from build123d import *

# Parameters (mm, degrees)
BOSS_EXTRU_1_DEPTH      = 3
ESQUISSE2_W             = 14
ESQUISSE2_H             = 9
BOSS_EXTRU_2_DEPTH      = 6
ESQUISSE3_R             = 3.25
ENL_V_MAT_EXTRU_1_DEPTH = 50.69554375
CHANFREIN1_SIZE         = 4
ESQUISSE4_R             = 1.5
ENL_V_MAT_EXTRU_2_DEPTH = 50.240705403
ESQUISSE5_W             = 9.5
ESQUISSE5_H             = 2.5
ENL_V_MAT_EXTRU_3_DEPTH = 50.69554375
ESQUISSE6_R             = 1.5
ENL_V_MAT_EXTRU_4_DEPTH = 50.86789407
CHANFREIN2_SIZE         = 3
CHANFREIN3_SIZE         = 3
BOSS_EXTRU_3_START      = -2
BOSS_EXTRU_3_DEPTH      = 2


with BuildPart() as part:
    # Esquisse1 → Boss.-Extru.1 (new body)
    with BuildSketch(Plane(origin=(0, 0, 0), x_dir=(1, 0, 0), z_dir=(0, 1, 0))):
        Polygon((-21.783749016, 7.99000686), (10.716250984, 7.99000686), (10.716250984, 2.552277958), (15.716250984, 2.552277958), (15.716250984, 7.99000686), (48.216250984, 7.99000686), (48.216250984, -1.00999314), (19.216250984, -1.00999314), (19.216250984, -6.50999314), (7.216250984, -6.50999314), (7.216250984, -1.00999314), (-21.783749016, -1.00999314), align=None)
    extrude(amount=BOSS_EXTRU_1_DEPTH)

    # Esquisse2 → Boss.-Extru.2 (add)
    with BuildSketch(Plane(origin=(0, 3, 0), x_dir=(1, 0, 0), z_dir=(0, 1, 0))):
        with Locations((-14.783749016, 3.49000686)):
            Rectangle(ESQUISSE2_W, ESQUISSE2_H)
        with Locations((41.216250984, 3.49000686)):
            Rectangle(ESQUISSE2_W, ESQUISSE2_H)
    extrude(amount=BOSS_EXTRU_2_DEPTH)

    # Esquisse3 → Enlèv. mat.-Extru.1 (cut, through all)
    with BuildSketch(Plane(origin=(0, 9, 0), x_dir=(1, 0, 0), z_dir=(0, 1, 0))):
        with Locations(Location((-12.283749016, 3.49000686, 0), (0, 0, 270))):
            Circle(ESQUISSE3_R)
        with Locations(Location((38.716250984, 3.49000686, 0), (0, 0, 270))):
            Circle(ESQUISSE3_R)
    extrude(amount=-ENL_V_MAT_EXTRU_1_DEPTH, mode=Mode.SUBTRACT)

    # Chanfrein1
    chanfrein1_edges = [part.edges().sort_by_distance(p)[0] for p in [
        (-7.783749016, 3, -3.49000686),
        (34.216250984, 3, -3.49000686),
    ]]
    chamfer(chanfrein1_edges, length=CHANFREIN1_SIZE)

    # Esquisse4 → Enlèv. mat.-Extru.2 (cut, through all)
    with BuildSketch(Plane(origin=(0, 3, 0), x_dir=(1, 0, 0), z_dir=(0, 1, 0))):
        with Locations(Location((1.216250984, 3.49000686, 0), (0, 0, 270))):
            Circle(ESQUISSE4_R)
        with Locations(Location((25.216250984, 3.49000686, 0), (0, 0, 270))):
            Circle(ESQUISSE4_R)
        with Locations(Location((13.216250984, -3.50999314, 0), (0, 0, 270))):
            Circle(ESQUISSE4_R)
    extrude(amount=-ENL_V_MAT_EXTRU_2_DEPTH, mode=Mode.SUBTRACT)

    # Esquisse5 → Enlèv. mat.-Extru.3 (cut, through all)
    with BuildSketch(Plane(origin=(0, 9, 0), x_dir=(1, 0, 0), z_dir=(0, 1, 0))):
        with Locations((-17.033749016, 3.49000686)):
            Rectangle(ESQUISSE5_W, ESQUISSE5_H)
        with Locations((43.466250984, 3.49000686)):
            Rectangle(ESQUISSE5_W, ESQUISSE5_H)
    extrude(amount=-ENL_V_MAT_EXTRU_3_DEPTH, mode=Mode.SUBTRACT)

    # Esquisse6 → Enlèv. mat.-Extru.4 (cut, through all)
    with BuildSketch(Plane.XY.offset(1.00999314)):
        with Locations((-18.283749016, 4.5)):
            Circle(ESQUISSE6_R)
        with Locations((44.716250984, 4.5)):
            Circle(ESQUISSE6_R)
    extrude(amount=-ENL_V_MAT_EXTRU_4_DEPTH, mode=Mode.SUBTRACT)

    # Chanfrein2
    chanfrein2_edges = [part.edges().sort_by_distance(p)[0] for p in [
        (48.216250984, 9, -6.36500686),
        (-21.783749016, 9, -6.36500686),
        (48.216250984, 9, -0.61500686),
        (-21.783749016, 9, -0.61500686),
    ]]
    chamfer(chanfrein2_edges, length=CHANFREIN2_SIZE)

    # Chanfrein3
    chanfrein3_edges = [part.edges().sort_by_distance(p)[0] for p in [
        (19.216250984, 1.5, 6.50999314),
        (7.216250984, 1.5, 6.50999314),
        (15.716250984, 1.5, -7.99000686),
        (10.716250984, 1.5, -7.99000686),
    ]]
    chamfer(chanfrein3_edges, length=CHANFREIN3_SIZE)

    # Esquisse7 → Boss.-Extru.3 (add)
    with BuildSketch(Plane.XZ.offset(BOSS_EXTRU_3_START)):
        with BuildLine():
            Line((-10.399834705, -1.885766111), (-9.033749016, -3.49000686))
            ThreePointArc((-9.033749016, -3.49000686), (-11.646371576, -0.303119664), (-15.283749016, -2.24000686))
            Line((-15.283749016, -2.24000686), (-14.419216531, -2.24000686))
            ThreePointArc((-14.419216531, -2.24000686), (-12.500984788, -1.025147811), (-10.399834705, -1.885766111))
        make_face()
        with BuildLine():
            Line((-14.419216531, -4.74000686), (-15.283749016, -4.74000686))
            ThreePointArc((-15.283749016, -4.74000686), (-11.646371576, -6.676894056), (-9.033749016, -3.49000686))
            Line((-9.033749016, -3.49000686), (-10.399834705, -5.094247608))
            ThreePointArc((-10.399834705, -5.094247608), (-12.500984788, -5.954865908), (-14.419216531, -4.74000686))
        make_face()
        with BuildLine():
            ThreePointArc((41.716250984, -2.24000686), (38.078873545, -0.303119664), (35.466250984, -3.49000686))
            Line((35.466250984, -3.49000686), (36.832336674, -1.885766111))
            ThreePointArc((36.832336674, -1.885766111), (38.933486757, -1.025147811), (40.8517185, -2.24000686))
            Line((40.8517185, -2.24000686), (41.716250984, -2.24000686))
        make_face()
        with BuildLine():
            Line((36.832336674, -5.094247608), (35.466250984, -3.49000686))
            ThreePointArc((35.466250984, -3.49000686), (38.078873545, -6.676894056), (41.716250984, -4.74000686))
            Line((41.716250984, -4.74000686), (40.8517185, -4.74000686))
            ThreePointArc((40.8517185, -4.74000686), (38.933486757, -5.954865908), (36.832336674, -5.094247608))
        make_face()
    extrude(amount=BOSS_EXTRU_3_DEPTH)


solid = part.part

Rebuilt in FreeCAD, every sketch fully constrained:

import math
import FreeCAD as App
import Part
import Sketcher
Q = App.Units.Quantity


def edges_at(feature, points):
    """Names of the edges that pass closest to the given points."""
    edges = feature.Shape.Edges
    near = lambda p: min(range(len(edges)), key=lambda i: edges[i].distToShape(Part.Vertex(*p))[0])
    return sorted({f"Edge{near(p) + 1}" for p in points})


def add_polygon(sketch, points):
    """Adds a closed chain of lines whose ends are joined by coincident constraints."""
    first, n = sketch.GeometryCount, len(points)
    for a, b in zip(points, points[1:] + points[:1]):
        sketch.addGeometry(Part.LineSegment(App.Vector(*a, 0), App.Vector(*b, 0)), False)
    for i in range(n):
        sketch.addConstraint(Sketcher.Constraint("Coincident", first + i, 2, first + (i + 1) % n, 1))

doc = App.newDocument("Part")
body = doc.addObject("PartDesign::Body", "Body")

sketch1 = body.newObject("Sketcher::SketchObject", "Sketch")
sketch1.AttachmentSupport = (doc.getObject("XZ_Plane"), [""])
sketch1.MapMode = "FlatFace"
add_polygon(sketch1, [(11, -8), (-22, -8), (-22, 1), (7, 1), (7, 7), (19, 7), (19, 1), (48, 1), (48, -8), (16, -8), (16, -3), (11, -3)])
sketch1.addConstraint(Sketcher.Constraint("Horizontal", 0))
sketch1.addConstraint(Sketcher.Constraint("Vertical", 1))
sketch1.addConstraint(Sketcher.Constraint("Horizontal", 2))
sketch1.addConstraint(Sketcher.Constraint("Vertical", 3))
sketch1.addConstraint(Sketcher.Constraint("Horizontal", 4))
sketch1.addConstraint(Sketcher.Constraint("Vertical", 5))
sketch1.addConstraint(Sketcher.Constraint("Horizontal", 6))
sketch1.addConstraint(Sketcher.Constraint("Vertical", 7))
sketch1.addConstraint(Sketcher.Constraint("Horizontal", 8))
sketch1.addConstraint(Sketcher.Constraint("Vertical", 9))
sketch1.addConstraint(Sketcher.Constraint("Horizontal", 10))
sketch1.addConstraint(Sketcher.Constraint("Vertical", 11))
sketch1.addConstraint(Sketcher.Constraint("Horizontal", 2, 2, 5, 2))
sketch1.addConstraint(Sketcher.Constraint("Horizontal", 0, 2, 7, 2))
sketch1.addConstraint(Sketcher.Constraint("Equal", 2, 6))
sketch1.addConstraint(Sketcher.Constraint("Equal", 0, 8))
sketch1.addConstraint(Sketcher.Constraint("DistanceX", 2, 1, 2, 2, Q("29 mm")))
sketch1.addConstraint(Sketcher.Constraint("DistanceX", 4, 1, 4, 2, Q("12 mm")))
sketch1.addConstraint(Sketcher.Constraint("DistanceX", 10, 2, 10, 1, Q("5 mm")))
sketch1.addConstraint(Sketcher.Constraint("DistanceY", 1, 1, 1, 2, Q("9 mm")))
sketch1.addConstraint(Sketcher.Constraint("DistanceY", 3, 1, 3, 2, Q("5.5 mm")))
sketch1.addConstraint(Sketcher.Constraint("DistanceY", 9, 1, 9, 2, Q("5.437729 mm")))
sketch1.addConstraint(Sketcher.Constraint("DistanceX", 0, 2, -1, 1, Q("21.783749 mm")))
sketch1.addConstraint(Sketcher.Constraint("DistanceY", 0, 2, -1, 1, Q("7.990007 mm")))
pad1 = body.newObject("PartDesign::Pad", "Pad")
pad1.Profile = sketch1
pad1.Length = 3
pad1.Reversed = True

sketch2 = body.newObject("Sketcher::SketchObject", "Sketch001")
sketch2.AttachmentSupport = (doc.getObject("XZ_Plane"), [""])
sketch2.MapMode = "FlatFace"
sketch2.AttachmentOffset = App.Placement(App.Vector(0, 0, -3), App.Rotation())
add_polygon(sketch2, [(-22, -8), (-22, 1), (-8, 1), (-8, -8)])
add_polygon(sketch2, [(34, -8), (34, 1), (48, 1), (48, -8)])
sketch2.addConstraint(Sketcher.Constraint("Vertical", 0))
sketch2.addConstraint(Sketcher.Constraint("Horizontal", 1))
sketch2.addConstraint(Sketcher.Constraint("Vertical", 2))
sketch2.addConstraint(Sketcher.Constraint("Horizontal", 3))
sketch2.addConstraint(Sketcher.Constraint("Vertical", 4))
sketch2.addConstraint(Sketcher.Constraint("Horizontal", 5))
sketch2.addConstraint(Sketcher.Constraint("Vertical", 6))
sketch2.addConstraint(Sketcher.Constraint("Horizontal", 7))
sketch2.addConstraint(Sketcher.Constraint("Horizontal", 1, 2, 4, 2))
sketch2.addConstraint(Sketcher.Constraint("Horizontal", 3, 2, 6, 2))
sketch2.addConstraint(Sketcher.Constraint("Equal", 3, 5))
sketch2.addConstraint(Sketcher.Constraint("DistanceX", 1, 1, 1, 2, Q("14 mm")))
sketch2.addConstraint(Sketcher.Constraint("DistanceY", 0, 1, 0, 2, Q("9 mm")))
sketch2.addConstraint(Sketcher.Constraint("DistanceX", 1, 2, 4, 2, Q("42 mm")))
sketch2.addConstraint(Sketcher.Constraint("DistanceX", 0, 2, -1, 1, Q("21.783749 mm")))
sketch2.addConstraint(Sketcher.Constraint("DistanceY", -1, 1, 0, 2, Q("1.009993 mm")))
pad2 = body.newObject("PartDesign::Pad", "Pad001")
pad2.Profile = sketch2
pad2.Length = 6
pad2.Reversed = True

sketch3 = body.newObject("Sketcher::SketchObject", "Sketch002")
sketch3.AttachmentSupport = (doc.getObject("XZ_Plane"), [""])
sketch3.MapMode = "FlatFace"
sketch3.AttachmentOffset = App.Placement(App.Vector(0, 0, -9), App.Rotation())
sketch3.addGeometry(Part.Circle(App.Vector(-12.3, -3.5, 0), App.Vector(0, 0, 1), 3.2), False)
sketch3.addGeometry(Part.Circle(App.Vector(38.7, -3.5, 0), App.Vector(0, 0, 1), 3.2), False)
sketch3.addConstraint(Sketcher.Constraint("Equal", 0, 1))
sketch3.addConstraint(Sketcher.Constraint("Horizontal", 0, 3, 1, 3))
sketch3.addConstraint(Sketcher.Constraint("Diameter", 0, Q("6.5 mm")))
sketch3.addConstraint(Sketcher.Constraint("DistanceX", 0, 3, 1, 3, Q("51 mm")))
sketch3.addConstraint(Sketcher.Constraint("DistanceX", 0, 3, -1, 1, Q("12.283749 mm")))
sketch3.addConstraint(Sketcher.Constraint("DistanceY", 0, 3, -1, 1, Q("3.490007 mm")))
pocket1 = body.newObject("PartDesign::Pocket", "Pocket")
pocket1.Profile = sketch3
pocket1.Type = "ThroughAll"
pocket1.Reversed = True
doc.recompute()

chamfer = body.newObject("PartDesign::Chamfer", "Chamfer")
chamfer.Base = (pocket1, edges_at(pocket1, [(-7.784, 3, -3.49), (34.216, 3, -3.49)]))
chamfer.Size = 4

sketch4 = body.newObject("Sketcher::SketchObject", "Sketch003")
sketch4.AttachmentSupport = (doc.getObject("XZ_Plane"), [""])
sketch4.MapMode = "FlatFace"
sketch4.AttachmentOffset = App.Placement(App.Vector(0, 0, -3), App.Rotation())
sketch4.addGeometry(Part.Circle(App.Vector(1.2, -3.5, 0), App.Vector(0, 0, 1), 1.5), False)
sketch4.addGeometry(Part.Circle(App.Vector(25.2, -3.5, 0), App.Vector(0, 0, 1), 1.5), False)
sketch4.addGeometry(Part.Circle(App.Vector(13.2, 3.5, 0), App.Vector(0, 0, 1), 1.5), False)
sketch4.addConstraint(Sketcher.Constraint("Equal", 0, 1))
sketch4.addConstraint(Sketcher.Constraint("Equal", 1, 2))
sketch4.addConstraint(Sketcher.Constraint("Horizontal", 0, 3, 1, 3))
sketch4.addConstraint(Sketcher.Constraint("Diameter", 0, Q("3 mm")))
sketch4.addConstraint(Sketcher.Constraint("DistanceX", 0, 3, 1, 3, Q("24 mm")))
sketch4.addConstraint(Sketcher.Constraint("DistanceX", 2, 3, 1, 3, Q("12 mm")))
sketch4.addConstraint(Sketcher.Constraint("DistanceY", 1, 3, 2, 3, Q("7 mm")))
sketch4.addConstraint(Sketcher.Constraint("DistanceX", -1, 1, 0, 3, Q("1.216251 mm")))
sketch4.addConstraint(Sketcher.Constraint("DistanceY", 0, 3, -1, 1, Q("3.490007 mm")))
pocket2 = body.newObject("PartDesign::Pocket", "Pocket001")
pocket2.Profile = sketch4
pocket2.Type = "ThroughAll"
pocket2.Reversed = True

sketch5 = body.newObject("Sketcher::SketchObject", "Sketch004")
sketch5.AttachmentSupport = (doc.getObject("XZ_Plane"), [""])
sketch5.MapMode = "FlatFace"
sketch5.AttachmentOffset = App.Placement(App.Vector(0, 0, -9), App.Rotation())
add_polygon(sketch5, [(-21.8, -4.7), (-21.8, -2.2), (-12.3, -2.2), (-12.3, -4.7)])
add_polygon(sketch5, [(38.7, -4.7), (38.7, -2.2), (48.2, -2.2), (48.2, -4.7)])
sketch5.addConstraint(Sketcher.Constraint("Vertical", 0))
sketch5.addConstraint(Sketcher.Constraint("Horizontal", 1))
sketch5.addConstraint(Sketcher.Constraint("Vertical", 2))
sketch5.addConstraint(Sketcher.Constraint("Horizontal", 3))
sketch5.addConstraint(Sketcher.Constraint("Vertical", 4))
sketch5.addConstraint(Sketcher.Constraint("Horizontal", 5))
sketch5.addConstraint(Sketcher.Constraint("Vertical", 6))
sketch5.addConstraint(Sketcher.Constraint("Horizontal", 7))
sketch5.addConstraint(Sketcher.Constraint("Horizontal", 1, 2, 4, 2))
sketch5.addConstraint(Sketcher.Constraint("Horizontal", 3, 2, 6, 2))
sketch5.addConstraint(Sketcher.Constraint("Equal", 3, 5))
sketch5.addConstraint(Sketcher.Constraint("DistanceX", 1, 1, 1, 2, Q("9.5 mm")))
sketch5.addConstraint(Sketcher.Constraint("DistanceY", 0, 1, 0, 2, Q("2.5 mm")))
sketch5.addConstraint(Sketcher.Constraint("DistanceX", 1, 2, 4, 2, Q("51 mm")))
sketch5.addConstraint(Sketcher.Constraint("DistanceX", 0, 2, -1, 1, Q("21.783749 mm")))
sketch5.addConstraint(Sketcher.Constraint("DistanceY", 0, 2, -1, 1, Q("2.240007 mm")))
pocket3 = body.newObject("PartDesign::Pocket", "Pocket002")
pocket3.Profile = sketch5
pocket3.Type = "ThroughAll"
pocket3.Reversed = True

sketch6 = body.newObject("Sketcher::SketchObject", "Sketch005")
sketch6.AttachmentSupport = (doc.getObject("XY_Plane"), [""])
sketch6.MapMode = "FlatFace"
sketch6.AttachmentOffset = App.Placement(App.Vector(0, 0, 1.009993), App.Rotation())
sketch6.addGeometry(Part.Circle(App.Vector(-18.3, 4.5, 0), App.Vector(0, 0, 1), 1.5), False)
sketch6.addGeometry(Part.Circle(App.Vector(44.7, 4.5, 0), App.Vector(0, 0, 1), 1.5), False)
sketch6.addConstraint(Sketcher.Constraint("Equal", 0, 1))
sketch6.addConstraint(Sketcher.Constraint("Horizontal", 0, 3, 1, 3))
sketch6.addConstraint(Sketcher.Constraint("Diameter", 0, Q("3 mm")))
sketch6.addConstraint(Sketcher.Constraint("DistanceX", 0, 3, 1, 3, Q("63 mm")))
sketch6.addConstraint(Sketcher.Constraint("DistanceY", -1, 1, 0, 3, Q("4.5 mm")))
sketch6.addConstraint(Sketcher.Constraint("DistanceX", 0, 3, -1, 1, Q("18.283749 mm")))
pocket4 = body.newObject("PartDesign::Pocket", "Pocket003")
pocket4.Profile = sketch6
pocket4.Type = "ThroughAll"
doc.recompute()

chamfer2 = body.newObject("PartDesign::Chamfer", "Chamfer001")
chamfer2.Base = (pocket4, edges_at(pocket4, [
    (48.216, 9, -6.365),
    (-21.784, 9, -6.365),
    (48.216, 9, -0.615),
    (-21.784, 9, -0.615),
]))
chamfer2.Size = 3
doc.recompute()

chamfer3 = body.newObject("PartDesign::Chamfer", "Chamfer002")
chamfer3.Base = (chamfer2, edges_at(chamfer2, [
    (19.216, 1.5, 6.51),
    (7.216, 1.5, 6.51),
    (15.716, 1.5, -7.99),
    (10.716, 1.5, -7.99),
]))
chamfer3.Size = 3

sketch7 = body.newObject("Sketcher::SketchObject", "Sketch006")
sketch7.AttachmentSupport = (doc.getObject("XZ_Plane"), [""])
sketch7.MapMode = "FlatFace"
sketch7.AttachmentOffset = App.Placement(App.Vector(0, 0, -2), App.Rotation())
sketch7.addGeometry(Part.LineSegment(App.Vector(-10.4, -1.9, 0), App.Vector(-9, -3.5, 0)), False)
sketch7.addGeometry(Part.ArcOfCircle(Part.Circle(App.Vector(-12.3, -3.5, 0), App.Vector(0, 0, 1), 3.2), math.radians(0), math.radians(157)), False)
sketch7.addGeometry(Part.LineSegment(App.Vector(-15.3, -2.2, 0), App.Vector(-14.4, -2.2, 0)), False)
sketch7.addGeometry(Part.ArcOfCircle(Part.Circle(App.Vector(-12.3, -3.5, 0), App.Vector(0, 0, 1), 2.5), math.radians(40), math.radians(150)), False)
sketch7.addGeometry(Part.LineSegment(App.Vector(-14.4, -4.7, 0), App.Vector(-15.3, -4.7, 0)), False)
sketch7.addGeometry(Part.ArcOfCircle(Part.Circle(App.Vector(-12.3, -3.5, 0), App.Vector(0, 0, 1), 3.2), math.radians(-157), math.radians(0)), False)
sketch7.addGeometry(Part.LineSegment(App.Vector(-9, -3.5, 0), App.Vector(-10.4, -5.1, 0)), False)
sketch7.addGeometry(Part.ArcOfCircle(Part.Circle(App.Vector(-12.3, -3.5, 0), App.Vector(0, 0, 1), 2.5), math.radians(-150), math.radians(-40)), False)
sketch7.addGeometry(Part.ArcOfCircle(Part.Circle(App.Vector(38.7, -3.5, 0), App.Vector(0, 0, 1), 3.2), math.radians(23), math.radians(180)), False)
sketch7.addGeometry(Part.LineSegment(App.Vector(35.5, -3.5, 0), App.Vector(36.8, -1.9, 0)), False)
sketch7.addGeometry(Part.ArcOfCircle(Part.Circle(App.Vector(38.7, -3.5, 0), App.Vector(0, 0, 1), 2.5), math.radians(30), math.radians(140)), False)
sketch7.addGeometry(Part.LineSegment(App.Vector(40.9, -2.2, 0), App.Vector(41.7, -2.2, 0)), False)
sketch7.addGeometry(Part.LineSegment(App.Vector(36.8, -5.1, 0), App.Vector(35.5, -3.5, 0)), False)
sketch7.addGeometry(Part.ArcOfCircle(Part.Circle(App.Vector(38.7, -3.5, 0), App.Vector(0, 0, 1), 3.2), math.radians(180), math.radians(337)), False)
sketch7.addGeometry(Part.LineSegment(App.Vector(41.7, -4.7, 0), App.Vector(40.9, -4.7, 0)), False)
sketch7.addGeometry(Part.ArcOfCircle(Part.Circle(App.Vector(38.7, -3.5, 0), App.Vector(0, 0, 1), 2.5), math.radians(-140), math.radians(-30)), False)
sketch7.addConstraint(Sketcher.Constraint("Coincident", 0, 2, 1, 1))
sketch7.addConstraint(Sketcher.Constraint("Coincident", 1, 2, 2, 1))
sketch7.addConstraint(Sketcher.Constraint("Coincident", 2, 2, 3, 2))
sketch7.addConstraint(Sketcher.Constraint("Tangent", 3, 1, 0, 1))
sketch7.addConstraint(Sketcher.Constraint("Coincident", 4, 2, 5, 1))
sketch7.addConstraint(Sketcher.Constraint("Coincident", 5, 2, 6, 1))
sketch7.addConstraint(Sketcher.Constraint("Tangent", 6, 2, 7, 2))
sketch7.addConstraint(Sketcher.Constraint("Coincident", 7, 1, 4, 1))
sketch7.addConstraint(Sketcher.Constraint("Coincident", 8, 2, 9, 1))
sketch7.addConstraint(Sketcher.Constraint("Tangent", 9, 2, 10, 2))
sketch7.addConstraint(Sketcher.Constraint("Coincident", 10, 1, 11, 1))
sketch7.addConstraint(Sketcher.Constraint("Coincident", 11, 2, 8, 1))
sketch7.addConstraint(Sketcher.Constraint("Coincident", 12, 2, 13, 1))
sketch7.addConstraint(Sketcher.Constraint("Coincident", 13, 2, 14, 1))
sketch7.addConstraint(Sketcher.Constraint("Coincident", 14, 2, 15, 2))
sketch7.addConstraint(Sketcher.Constraint("Tangent", 15, 1, 12, 1))
sketch7.addConstraint(Sketcher.Constraint("Horizontal", 2))
sketch7.addConstraint(Sketcher.Constraint("Horizontal", 4))
sketch7.addConstraint(Sketcher.Constraint("Horizontal", 11))
sketch7.addConstraint(Sketcher.Constraint("Horizontal", 14))
sketch7.addConstraint(Sketcher.Constraint("Coincident", 3, 3, 1, 3))
sketch7.addConstraint(Sketcher.Constraint("Coincident", 5, 3, 1, 3))
sketch7.addConstraint(Sketcher.Constraint("Coincident", 7, 3, 1, 3))
sketch7.addConstraint(Sketcher.Constraint("Coincident", 10, 3, 8, 3))
sketch7.addConstraint(Sketcher.Constraint("Coincident", 13, 3, 8, 3))
sketch7.addConstraint(Sketcher.Constraint("Coincident", 15, 3, 8, 3))
sketch7.addConstraint(Sketcher.Constraint("Coincident", 5, 2, 0, 2))
sketch7.addConstraint(Sketcher.Constraint("Coincident", 12, 2, 8, 2))
sketch7.addConstraint(Sketcher.Constraint("Equal", 3, 7))
sketch7.addConstraint(Sketcher.Constraint("Equal", 5, 8))
sketch7.addConstraint(Sketcher.Constraint("Equal", 7, 10))
sketch7.addConstraint(Sketcher.Constraint("Equal", 10, 15))
sketch7.addConstraint(Sketcher.Constraint("Parallel", 6, 9))
sketch7.addConstraint(Sketcher.Constraint("Horizontal", 7, 3, 8, 3))
sketch7.addConstraint(Sketcher.Constraint("Horizontal", 15, 3, 0, 2))
sketch7.addConstraint(Sketcher.Constraint("Horizontal", 2, 2, 10, 1))
sketch7.addConstraint(Sketcher.Constraint("Horizontal", 7, 1, 13, 2))
sketch7.addConstraint(Sketcher.Constraint("Vertical", 1, 2, 4, 2))
sketch7.addConstraint(Sketcher.Constraint("Radius", 1, Q("3.25 mm")))
sketch7.addConstraint(Sketcher.Constraint("DistanceX", 1, 3, 8, 3, Q("51 mm")))
sketch7.addConstraint(Sketcher.Constraint("DistanceX", 1, 2, 3, 3, Q("3 mm")))
sketch7.addConstraint(Sketcher.Constraint("Radius", 3, Q("2.474413 mm")))
sketch7.addConstraint(Sketcher.Constraint("DistanceX", 1, 3, -1, 1, Q("12.283749 mm")))
sketch7.addConstraint(Sketcher.Constraint("DistanceY", 1, 3, -1, 1, Q("3.490007 mm")))
pad3 = body.newObject("PartDesign::Pad", "Pad002")
pad3.Profile = sketch7
pad3.Length = 2

doc.recompute()
